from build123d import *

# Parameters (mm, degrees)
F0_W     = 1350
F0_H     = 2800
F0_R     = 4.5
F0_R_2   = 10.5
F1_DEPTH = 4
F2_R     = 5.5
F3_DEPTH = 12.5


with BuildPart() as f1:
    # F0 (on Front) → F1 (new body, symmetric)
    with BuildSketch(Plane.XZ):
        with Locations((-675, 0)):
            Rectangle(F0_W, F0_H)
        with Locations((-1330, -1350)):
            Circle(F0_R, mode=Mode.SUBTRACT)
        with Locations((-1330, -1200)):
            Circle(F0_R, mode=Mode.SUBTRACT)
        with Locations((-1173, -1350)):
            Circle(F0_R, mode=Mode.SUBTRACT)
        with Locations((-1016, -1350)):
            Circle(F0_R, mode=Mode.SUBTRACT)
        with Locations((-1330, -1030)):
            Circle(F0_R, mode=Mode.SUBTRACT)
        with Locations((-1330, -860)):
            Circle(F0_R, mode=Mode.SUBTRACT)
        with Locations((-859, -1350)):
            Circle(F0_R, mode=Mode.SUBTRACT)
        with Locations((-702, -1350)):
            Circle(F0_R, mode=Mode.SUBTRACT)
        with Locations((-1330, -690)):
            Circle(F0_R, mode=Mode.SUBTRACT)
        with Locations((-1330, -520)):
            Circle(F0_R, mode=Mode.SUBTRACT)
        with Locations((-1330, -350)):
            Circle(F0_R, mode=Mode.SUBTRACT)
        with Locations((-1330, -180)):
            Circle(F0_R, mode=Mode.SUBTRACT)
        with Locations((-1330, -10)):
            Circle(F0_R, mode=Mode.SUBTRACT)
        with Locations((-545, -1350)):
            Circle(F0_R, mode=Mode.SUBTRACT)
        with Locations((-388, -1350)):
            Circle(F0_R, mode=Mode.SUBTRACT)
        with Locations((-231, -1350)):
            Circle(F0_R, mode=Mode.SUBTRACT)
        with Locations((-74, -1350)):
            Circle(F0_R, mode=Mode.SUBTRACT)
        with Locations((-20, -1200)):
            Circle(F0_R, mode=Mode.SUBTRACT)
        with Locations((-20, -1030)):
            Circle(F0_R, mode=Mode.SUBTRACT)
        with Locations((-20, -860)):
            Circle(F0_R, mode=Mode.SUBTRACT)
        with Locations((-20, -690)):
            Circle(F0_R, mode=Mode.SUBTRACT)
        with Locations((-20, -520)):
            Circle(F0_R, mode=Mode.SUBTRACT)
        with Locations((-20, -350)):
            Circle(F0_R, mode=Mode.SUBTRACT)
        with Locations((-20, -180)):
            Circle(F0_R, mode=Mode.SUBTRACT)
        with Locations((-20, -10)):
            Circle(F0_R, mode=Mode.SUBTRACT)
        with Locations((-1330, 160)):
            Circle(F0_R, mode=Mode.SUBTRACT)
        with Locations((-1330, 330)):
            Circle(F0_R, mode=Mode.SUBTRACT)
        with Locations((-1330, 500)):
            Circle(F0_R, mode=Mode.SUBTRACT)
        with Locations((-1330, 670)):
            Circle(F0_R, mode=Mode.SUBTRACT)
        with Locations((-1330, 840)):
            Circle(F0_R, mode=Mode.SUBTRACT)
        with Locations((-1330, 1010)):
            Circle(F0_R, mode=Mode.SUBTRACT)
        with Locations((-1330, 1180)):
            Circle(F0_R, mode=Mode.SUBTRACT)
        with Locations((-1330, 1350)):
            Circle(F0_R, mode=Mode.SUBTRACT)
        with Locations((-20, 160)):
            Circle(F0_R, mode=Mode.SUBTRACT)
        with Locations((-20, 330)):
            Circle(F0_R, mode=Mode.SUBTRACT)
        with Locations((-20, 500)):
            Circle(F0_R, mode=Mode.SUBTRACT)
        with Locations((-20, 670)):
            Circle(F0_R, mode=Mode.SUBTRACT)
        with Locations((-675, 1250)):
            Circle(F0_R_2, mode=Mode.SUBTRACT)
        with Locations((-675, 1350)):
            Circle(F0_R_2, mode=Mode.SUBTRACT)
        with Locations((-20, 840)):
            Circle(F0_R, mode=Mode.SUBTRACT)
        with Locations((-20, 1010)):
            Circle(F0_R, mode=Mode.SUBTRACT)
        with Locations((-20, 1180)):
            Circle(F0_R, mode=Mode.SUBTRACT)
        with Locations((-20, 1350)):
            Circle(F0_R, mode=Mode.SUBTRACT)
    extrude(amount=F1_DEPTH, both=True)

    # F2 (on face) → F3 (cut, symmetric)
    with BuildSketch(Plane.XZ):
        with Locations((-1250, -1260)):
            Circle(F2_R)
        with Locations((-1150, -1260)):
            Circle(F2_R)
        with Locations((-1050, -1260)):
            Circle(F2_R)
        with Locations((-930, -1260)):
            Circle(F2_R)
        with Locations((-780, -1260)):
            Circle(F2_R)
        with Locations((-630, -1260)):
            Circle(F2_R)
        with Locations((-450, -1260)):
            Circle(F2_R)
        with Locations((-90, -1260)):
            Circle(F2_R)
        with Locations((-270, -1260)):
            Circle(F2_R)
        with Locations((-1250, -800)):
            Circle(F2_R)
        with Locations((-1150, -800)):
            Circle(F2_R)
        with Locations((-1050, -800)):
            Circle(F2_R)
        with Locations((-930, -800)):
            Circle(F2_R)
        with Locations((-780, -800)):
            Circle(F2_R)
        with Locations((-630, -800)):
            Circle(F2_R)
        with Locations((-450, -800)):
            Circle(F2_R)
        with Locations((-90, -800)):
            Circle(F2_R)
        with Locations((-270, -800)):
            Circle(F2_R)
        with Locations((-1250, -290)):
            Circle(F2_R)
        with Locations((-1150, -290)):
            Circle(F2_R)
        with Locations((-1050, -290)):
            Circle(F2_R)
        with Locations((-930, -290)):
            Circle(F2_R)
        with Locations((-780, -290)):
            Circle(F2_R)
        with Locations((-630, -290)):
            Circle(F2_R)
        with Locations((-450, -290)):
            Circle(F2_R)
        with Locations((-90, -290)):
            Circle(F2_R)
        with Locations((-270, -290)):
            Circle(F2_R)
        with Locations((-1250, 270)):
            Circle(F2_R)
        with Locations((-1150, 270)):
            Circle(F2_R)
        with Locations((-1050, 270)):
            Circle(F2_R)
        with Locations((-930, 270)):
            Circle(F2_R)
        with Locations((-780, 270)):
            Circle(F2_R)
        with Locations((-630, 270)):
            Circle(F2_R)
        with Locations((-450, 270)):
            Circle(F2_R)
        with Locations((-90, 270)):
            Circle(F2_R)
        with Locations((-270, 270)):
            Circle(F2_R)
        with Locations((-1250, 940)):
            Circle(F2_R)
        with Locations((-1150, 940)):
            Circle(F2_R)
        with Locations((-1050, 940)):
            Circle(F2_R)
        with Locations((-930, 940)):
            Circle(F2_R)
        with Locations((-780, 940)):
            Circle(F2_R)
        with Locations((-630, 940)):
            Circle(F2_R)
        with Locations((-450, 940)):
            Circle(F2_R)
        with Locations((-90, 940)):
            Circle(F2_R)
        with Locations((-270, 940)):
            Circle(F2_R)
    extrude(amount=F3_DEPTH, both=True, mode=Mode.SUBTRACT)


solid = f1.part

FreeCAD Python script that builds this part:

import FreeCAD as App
import Part
import Sketcher
from FreeCAD import Vector

doc = App.newDocument("Part")
body = doc.addObject("PartDesign::Body", "Body")

sketch1 = body.newObject("Sketcher::SketchObject", "Sketch")
sketch1.AttachmentSupport = (doc.getObject("XZ_Plane"), [""])
sketch1.MapMode = "FlatFace"
sketch1.addGeometry([
    Part.LineSegment(Vector(-1350, 1400, 0), Vector(-1350, -1400, 0)),
    Part.LineSegment(Vector(-1350, -1400, 0), Vector(0, -1400, 0)),
    Part.LineSegment(Vector(0, -1400, 0), Vector(0, 1400, 0)),
    Part.LineSegment(Vector(0, 1400, 0), Vector(-1350, 1400, 0)),
    Part.Circle(Vector(-1330, -1350, 0), Vector(0, 0, 1), 4.5),
    Part.Circle(Vector(-1330, -1200, 0), Vector(0, 0, 1), 4.5),
    Part.Circle(Vector(-1173, -1350, 0), Vector(0, 0, 1), 4.5),
    Part.Circle(Vector(-1330, -1030, 0), Vector(0, 0, 1), 4.5),
    Part.Circle(Vector(-1016, -1350, 0), Vector(0, 0, 1), 4.5),
    Part.Circle(Vector(-1330, -860, 0), Vector(0, 0, 1), 4.5),
    Part.Circle(Vector(-1330, -690, 0), Vector(0, 0, 1), 4.5),
    Part.Circle(Vector(-859, -1350, 0), Vector(0, 0, 1), 4.5),
    Part.Circle(Vector(-702, -1350, 0), Vector(0, 0, 1), 4.5),
    Part.Circle(Vector(-1330, -520, 0), Vector(0, 0, 1), 4.5),
    Part.Circle(Vector(-1330, -350, 0), Vector(0, 0, 1), 4.5),
    Part.Circle(Vector(-1330, -180, 0), Vector(0, 0, 1), 4.5),
    Part.Circle(Vector(-1330, -10, 0), Vector(0, 0, 1), 4.5),
    Part.Circle(Vector(-545, -1350, 0), Vector(0, 0, 1), 4.5),
    Part.Circle(Vector(-388, -1350, 0), Vector(0, 0, 1), 4.5),
    Part.Circle(Vector(-231, -1350, 0), Vector(0, 0, 1), 4.5),
    Part.Circle(Vector(-74, -1350, 0), Vector(0, 0, 1), 4.5),
    Part.Circle(Vector(-20, -1200, 0), Vector(0, 0, 1), 4.5),
    Part.Circle(Vector(-20, -1030, 0), Vector(0, 0, 1), 4.5),
    Part.Circle(Vector(-20, -860, 0), Vector(0, 0, 1), 4.5),
    Part.Circle(Vector(-20, -690, 0), Vector(0, 0, 1), 4.5),
    Part.Circle(Vector(-20, -520, 0), Vector(0, 0, 1), 4.5),
    Part.Circle(Vector(-20, -350, 0), Vector(0, 0, 1), 4.5),
    Part.Circle(Vector(-20, -180, 0), Vector(0, 0, 1), 4.5),
    Part.Circle(Vector(-20, -10, 0), Vector(0, 0, 1), 4.5),
    Part.Circle(Vector(-1330, 160, 0), Vector(0, 0, 1), 4.5),
    Part.Circle(Vector(-1330, 330, 0), Vector(0, 0, 1), 4.5),
    Part.Circle(Vector(-1330, 500, 0), Vector(0, 0, 1), 4.5),
    Part.Circle(Vector(-1330, 670, 0), Vector(0, 0, 1), 4.5),
    Part.Circle(Vector(-1330, 840, 0), Vector(0, 0, 1), 4.5),
    Part.Circle(Vector(-1330, 1010, 0), Vector(0, 0, 1), 4.5),
    Part.Circle(Vector(-1330, 1180, 0), Vector(0, 0, 1), 4.5),
    Part.Circle(Vector(-1330, 1350, 0), Vector(0, 0, 1), 4.5),
    Part.Circle(Vector(-20, 160, 0), Vector(0, 0, 1), 4.5),
    Part.Circle(Vector(-20, 330, 0), Vector(0, 0, 1), 4.5),
    Part.Circle(Vector(-20, 500, 0), Vector(0, 0, 1), 4.5),
    Part.Circle(Vector(-20, 670, 0), Vector(0, 0, 1), 4.5),
    Part.Circle(Vector(-675, 1250, 0), Vector(0, 0, 1), 10.5),
    Part.Circle(Vector(-675, 1350, 0), Vector(0, 0, 1), 10.5),
    Part.Circle(Vector(-20, 840, 0), Vector(0, 0, 1), 4.5),
    Part.Circle(Vector(-20, 1010, 0), Vector(0, 0, 1), 4.5),
    Part.Circle(Vector(-20, 1180, 0), Vector(0, 0, 1), 4.5),
    Part.Circle(Vector(-20, 1350, 0), Vector(0, 0, 1), 4.5),
], False)
sketch1.addConstraint([
    Sketcher.Constraint("Coincident", 0, 2, 1, 1),
    Sketcher.Constraint("Coincident", 1, 2, 2, 1),
    Sketcher.Constraint("Coincident", 2, 2, 3, 1),
    Sketcher.Constraint("Coincident", 3, 2, 0, 1),
    Sketcher.Constraint("Vertical", 0),
    Sketcher.Constraint("Horizontal", 1),
    Sketcher.Constraint("Vertical", 2),
    Sketcher.Constraint("Horizontal", 3),
    Sketcher.Constraint("Equal", 4, 5),
    Sketcher.Constraint("Equal", 5, 6),
    Sketcher.Constraint("Equal", 6, 7),
    Sketcher.Constraint("Equal", 7, 8),
    Sketcher.Constraint("Equal", 8, 9),
    Sketcher.Constraint("Equal", 9, 10),
    Sketcher.Constraint("Equal", 10, 11),
    Sketcher.Constraint("Equal", 11, 12),
    Sketcher.Constraint("Equal", 12, 13),
    Sketcher.Constraint("Equal", 13, 14),
    Sketcher.Constraint("Equal", 14, 15),
    Sketcher.Constraint("Equal", 15, 16),
    Sketcher.Constraint("Equal", 16, 17),
    Sketcher.Constraint("Equal", 17, 18),
    Sketcher.Constraint("Equal", 18, 19),
    Sketcher.Constraint("Equal", 19, 20),
    Sketcher.Constraint("Equal", 20, 21),
    Sketcher.Constraint("Equal", 21, 22),
    Sketcher.Constraint("Equal", 22, 23),
    Sketcher.Constraint("Equal", 23, 24),
    Sketcher.Constraint("Equal", 24, 25),
    Sketcher.Constraint("Equal", 25, 26),
    Sketcher.Constraint("Equal", 26, 27),
    Sketcher.Constraint("Equal", 27, 28),
    Sketcher.Constraint("Equal", 28, 29),
    Sketcher.Constraint("Equal", 29, 30),
    Sketcher.Constraint("Equal", 30, 31),
    Sketcher.Constraint("Equal", 31, 32),
    Sketcher.Constraint("Equal", 32, 33),
    Sketcher.Constraint("Equal", 33, 34),
    Sketcher.Constraint("Equal", 34, 35),
    Sketcher.Constraint("Equal", 35, 36),
    Sketcher.Constraint("Equal", 36, 37),
    Sketcher.Constraint("Equal", 37, 38),
    Sketcher.Constraint("Equal", 38, 39),
    Sketcher.Constraint("Equal", 39, 40),
    Sketcher.Constraint("Equal", 41, 42),
    Sketcher.Constraint("Equal", 40, 43),
    Sketcher.Constraint("Equal", 43, 44),
    Sketcher.Constraint("Equal", 44, 45),
    Sketcher.Constraint("Equal", 45, 46),
    Sketcher.Constraint("Symmetric", 1, 2, 2, 2, -1, 1),
    Sketcher.Constraint("Symmetric", 4, 3, 36, 3, -1),
    Sketcher.Constraint("Horizontal", 4, 3, 6, 3),
    Sketcher.Constraint("Horizontal", 6, 3, 8, 3),
    Sketcher.Constraint("Horizontal", 8, 3, 11, 3),
    Sketcher.Constraint("Horizontal", 11, 3, 12, 3),
    Sketcher.Constraint("Horizontal", 12, 3, 17, 3),
    Sketcher.Constraint("Horizontal", 17, 3, 18, 3),
    Sketcher.Constraint("Horizontal", 18, 3, 19, 3),
    Sketcher.Constraint("Horizontal", 19, 3, 20, 3),
    Sketcher.Constraint("Horizontal", 5, 3, 21, 3),
    Sketcher.Constraint("Horizontal", 7, 3, 22, 3),
    Sketcher.Constraint("Horizontal", 9, 3, 23, 3),
    Sketcher.Constraint("Horizontal", 10, 3, 24, 3),
    Sketcher.Constraint("Horizontal", 13, 3, 25, 3),
    Sketcher.Constraint("Horizontal", 14, 3, 26, 3),
    Sketcher.Constraint("Horizontal", 15, 3, 27, 3),
    Sketcher.Constraint("Horizontal", 16, 3, 28, 3),
    Sketcher.Constraint("Horizontal", 29, 3, 37, 3),
    Sketcher.Constraint("Horizontal", 30, 3, 38, 3),
    Sketcher.Constraint("Horizontal", 31, 3, 39, 3),
    Sketcher.Constraint("Horizontal", 32, 3, 40, 3),
    Sketcher.Constraint("Horizontal", 36, 3, 42, 3),
    Sketcher.Constraint("Horizontal", 33, 3, 43, 3),
    Sketcher.Constraint("Horizontal", 34, 3, 44, 3),
    Sketcher.Constraint("Horizontal", 35, 3, 45, 3),
    Sketcher.Constraint("Horizontal", 42, 3, 46, 3),
    Sketcher.Constraint("Vertical", 4, 3, 5, 3),
    Sketcher.Constraint("Vertical", 5, 3, 7, 3),
    Sketcher.Constraint("Vertical", 7, 3, 9, 3),
    Sketcher.Constraint("Vertical", 9, 3, 10, 3),
    Sketcher.Constraint("Vertical", 10, 3, 13, 3),
    Sketcher.Constraint("Vertical", 13, 3, 14, 3),
    Sketcher.Constraint("Vertical", 14, 3, 15, 3),
    Sketcher.Constraint("Vertical", 15, 3, 16, 3),
    Sketcher.Constraint("Vertical", 21, 3, 22, 3),
    Sketcher.Constraint("Vertical", 22, 3, 23, 3),
    Sketcher.Constraint("Vertical", 23, 3, 24, 3),
    Sketcher.Constraint("Vertical", 24, 3, 25, 3),
    Sketcher.Constraint("Vertical", 25, 3, 26, 3),
    Sketcher.Constraint("Vertical", 26, 3, 27, 3),
    Sketcher.Constraint("Vertical", 27, 3, 28, 3),
    Sketcher.Constraint("Vertical", 16, 3, 29, 3),
    Sketcher.Constraint("Vertical", 29, 3, 30, 3),
    Sketcher.Constraint("Vertical", 30, 3, 31, 3),
    Sketcher.Constraint("Vertical", 31, 3, 32, 3),
    Sketcher.Constraint("Vertical", 32, 3, 33, 3),
    Sketcher.Constraint("Vertical", 33, 3, 34, 3),
    Sketcher.Constraint("Vertical", 34, 3, 35, 3),
    Sketcher.Constraint("Vertical", 28, 3, 37, 3),
    Sketcher.Constraint("Vertical", 37, 3, 38, 3),
    Sketcher.Constraint("Vertical", 38, 3, 39, 3),
    Sketcher.Constraint("Vertical", 39, 3, 40, 3),
    Sketcher.Constraint("Vertical", 41, 3, 42, 3),
    Sketcher.Constraint("Vertical", 40, 3, 43, 3),
    Sketcher.Constraint("Vertical", 43, 3, 44, 3),
    Sketcher.Constraint("Vertical", 44, 3, 45, 3),
    Sketcher.Constraint("Vertical", 45, 3, 46, 3),
    Sketcher.Constraint("Diameter", 4, 9.0),
    Sketcher.Constraint("Diameter", 41, 21.0),
    Sketcher.Constraint("DistanceX", 1, 1, 1, 2, 1350.0),
    Sketcher.Constraint("DistanceY", 0, 2, 0, 1, 2800.0),
    Sketcher.Constraint("DistanceX", 4, 3, -1, 1, 1330.0),
    Sketcher.Constraint("DistanceY", 4, 3, -1, 1, 1350.0),
    Sketcher.Constraint("DistanceY", 5, 3, -1, 1, 1200.0),
    Sketcher.Constraint("DistanceX", 6, 3, -1, 1, 1173.0),
    Sketcher.Constraint("DistanceY", 7, 3, -1, 1, 1030.0),
    Sketcher.Constraint("DistanceX", 8, 3, -1, 1, 1016.0),
    Sketcher.Constraint("DistanceY", 9, 3, -1, 1, 860.0),
    Sketcher.Constraint("DistanceY", 10, 3, -1, 1, 690.0),
    Sketcher.Constraint("DistanceX", 11, 3, -1, 1, 859.0),
    Sketcher.Constraint("DistanceX", 12, 3, -1, 1, 702.0),
    Sketcher.Constraint("DistanceY", 13, 3, -1, 1, 520.0),
    Sketcher.Constraint("DistanceY", 14, 3, -1, 1, 350.0),
    Sketcher.Constraint("DistanceY", 15, 3, -1, 1, 180.0),
    Sketcher.Constraint("DistanceY", 16, 3, -1, 1, 10.0),
    Sketcher.Constraint("DistanceX", 17, 3, -1, 1, 545.0),
    Sketcher.Constraint("DistanceX", 18, 3, -1, 1, 388.0),
    Sketcher.Constraint("DistanceX", 19, 3, -1, 1, 231.0),
    Sketcher.Constraint("DistanceX", 20, 3, -1, 1, 74.0),
    Sketcher.Constraint("DistanceX", 21, 3, -1, 1, 20.0),
    Sketcher.Constraint("DistanceY", -1, 1, 29, 3, 160.0),
    Sketcher.Constraint("DistanceY", -1, 1, 30, 3, 330.0),
    Sketcher.Constraint("DistanceY", -1, 1, 31, 3, 500.0),
    Sketcher.Constraint("DistanceY", -1, 1, 32, 3, 670.0),
    Sketcher.Constraint("DistanceY", -1, 1, 33, 3, 840.0),
    Sketcher.Constraint("DistanceY", -1, 1, 34, 3, 1010.0),
    Sketcher.Constraint("DistanceY", -1, 1, 35, 3, 1180.0),
    Sketcher.Constraint("DistanceX", 41, 3, -1, 1, 675.0),
    Sketcher.Constraint("DistanceY", -1, 1, 41, 3, 1250.0),
])
pad1 = body.newObject("PartDesign::Pad", "Pad")
pad1.Profile = sketch1
pad1.Length = 8
pad1.Midplane = True

sketch2 = body.newObject("Sketcher::SketchObject", "Sketch001")
sketch2.AttachmentSupport = (doc.getObject("XZ_Plane"), [""])
sketch2.MapMode = "FlatFace"
sketch2.addGeometry([
    Part.Circle(Vector(-1250, -1260, 0), Vector(0, 0, 1), 6),
    Part.Circle(Vector(-1150, -1260, 0), Vector(0, 0, 1), 6),
    Part.Circle(Vector(-1050, -1260, 0), Vector(0, 0, 1), 6),
    Part.Circle(Vector(-930, -1260, 0), Vector(0, 0, 1), 6),
    Part.Circle(Vector(-780, -1260, 0), Vector(0, 0, 1), 6),
    Part.Circle(Vector(-630, -1260, 0), Vector(0, 0, 1), 6),
    Part.Circle(Vector(-450, -1260, 0), Vector(0, 0, 1), 6),
    Part.Circle(Vector(-90, -1260, 0), Vector(0, 0, 1), 6),
    Part.Circle(Vector(-270, -1260, 0), Vector(0, 0, 1), 6),
    Part.Circle(Vector(-1250, -800, 0), Vector(0, 0, 1), 6),
    Part.Circle(Vector(-1150, -800, 0), Vector(0, 0, 1), 6),
    Part.Circle(Vector(-1050, -800, 0), Vector(0, 0, 1), 6),
    Part.Circle(Vector(-930, -800, 0), Vector(0, 0, 1), 6),
    Part.Circle(Vector(-780, -800, 0), Vector(0, 0, 1), 6),
    Part.Circle(Vector(-630, -800, 0), Vector(0, 0, 1), 6),
    Part.Circle(Vector(-450, -800, 0), Vector(0, 0, 1), 6),
    Part.Circle(Vector(-90, -800, 0), Vector(0, 0, 1), 6),
    Part.Circle(Vector(-270, -800, 0), Vector(0, 0, 1), 6),
    Part.Circle(Vector(-1250, -290, 0), Vector(0, 0, 1), 6),
    Part.Circle(Vector(-1150, -290, 0), Vector(0, 0, 1), 6),
    Part.Circle(Vector(-1050, -290, 0), Vector(0, 0, 1), 6),
    Part.Circle(Vector(-930, -290, 0), Vector(0, 0, 1), 6),
    Part.Circle(Vector(-780, -290, 0), Vector(0, 0, 1), 6),
    Part.Circle(Vector(-630, -290, 0), Vector(0, 0, 1), 6),
    Part.Circle(Vector(-450, -290, 0), Vector(0, 0, 1), 6),
    Part.Circle(Vector(-90, -290, 0), Vector(0, 0, 1), 6),
    Part.Circle(Vector(-270, -290, 0), Vector(0, 0, 1), 6),
    Part.Circle(Vector(-1250, 270, 0), Vector(0, 0, 1), 6),
    Part.Circle(Vector(-1150, 270, 0), Vector(0, 0, 1), 6),
    Part.Circle(Vector(-1050, 270, 0), Vector(0, 0, 1), 6),
    Part.Circle(Vector(-930, 270, 0), Vector(0, 0, 1), 6),
    Part.Circle(Vector(-780, 270, 0), Vector(0, 0, 1), 6),
    Part.Circle(Vector(-630, 270, 0), Vector(0, 0, 1), 6),
    Part.Circle(Vector(-450, 270, 0), Vector(0, 0, 1), 6),
    Part.Circle(Vector(-90, 270, 0), Vector(0, 0, 1), 6),
    Part.Circle(Vector(-270, 270, 0), Vector(0, 0, 1), 6),
    Part.Circle(Vector(-1250, 940, 0), Vector(0, 0, 1), 6),
    Part.Circle(Vector(-1150, 940, 0), Vector(0, 0, 1), 6),
    Part.Circle(Vector(-1050, 940, 0), Vector(0, 0, 1), 6),
    Part.Circle(Vector(-930, 940, 0), Vector(0, 0, 1), 6),
    Part.Circle(Vector(-780, 940, 0), Vector(0, 0, 1), 6),
    Part.Circle(Vector(-630, 940, 0), Vector(0, 0, 1), 6),
    Part.Circle(Vector(-450, 940, 0), Vector(0, 0, 1), 6),
    Part.Circle(Vector(-90, 940, 0), Vector(0, 0, 1), 6),
    Part.Circle(Vector(-270, 940, 0), Vector(0, 0, 1), 6),
], False)
sketch2.addConstraint([
    Sketcher.Constraint("Equal", 0, 1),
    Sketcher.Constraint("Equal", 1, 2),
    Sketcher.Constraint("Equal", 2, 3),
    Sketcher.Constraint("Equal", 3, 4),
    Sketcher.Constraint("Equal", 4, 5),
    Sketcher.Constraint("Equal", 5, 6),
    Sketcher.Constraint("Equal", 6, 7),
    Sketcher.Constraint("Equal", 7, 8),
    Sketcher.Constraint("Equal", 8, 9),
    Sketcher.Constraint("Equal", 9, 10),
    Sketcher.Constraint("Equal", 10, 11),
    Sketcher.Constraint("Equal", 11, 12),
    Sketcher.Constraint("Equal", 12, 13),
    Sketcher.Constraint("Equal", 13, 14),
    Sketcher.Constraint("Equal", 14, 15),
    Sketcher.Constraint("Equal", 15, 16),
    Sketcher.Constraint("Equal", 16, 17),
    Sketcher.Constraint("Equal", 17, 18),
    Sketcher.Constraint("Equal", 18, 19),
    Sketcher.Constraint("Equal", 19, 20),
    Sketcher.Constraint("Equal", 20, 21),
    Sketcher.Constraint("Equal", 21, 22),
    Sketcher.Constraint("Equal", 22, 23),
    Sketcher.Constraint("Equal", 23, 24),
    Sketcher.Constraint("Equal", 24, 25),
    Sketcher.Constraint("Equal", 25, 26),
    Sketcher.Constraint("Equal", 26, 27),
    Sketcher.Constraint("Equal", 27, 28),
    Sketcher.Constraint("Equal", 28, 29),
    Sketcher.Constraint("Equal", 29, 30),
    Sketcher.Constraint("Equal", 30, 31),
    Sketcher.Constraint("Equal", 31, 32),
    Sketcher.Constraint("Equal", 32, 33),
    Sketcher.Constraint("Equal", 33, 34),
    Sketcher.Constraint("Equal", 34, 35),
    Sketcher.Constraint("Equal", 35, 36),
    Sketcher.Constraint("Equal", 36, 37),
    Sketcher.Constraint("Equal", 37, 38),
    Sketcher.Constraint("Equal", 38, 39),
    Sketcher.Constraint("Equal", 39, 40),
    Sketcher.Constraint("Equal", 40, 41),
    Sketcher.Constraint("Equal", 41, 42),
    Sketcher.Constraint("Equal", 42, 43),
    Sketcher.Constraint("Equal", 43, 44),
    Sketcher.Constraint("Horizontal", 0, 3, 1, 3),
    Sketcher.Constraint("Horizontal", 1, 3, 2, 3),
    Sketcher.Constraint("Horizontal", 2, 3, 3, 3),
    Sketcher.Constraint("Horizontal", 3, 3, 4, 3),
    Sketcher.Constraint("Horizontal", 4, 3, 5, 3),
    Sketcher.Constraint("Horizontal", 5, 3, 6, 3),
    Sketcher.Constraint("Horizontal", 6, 3, 7, 3),
    Sketcher.Constraint("Horizontal", 7, 3, 8, 3),
    Sketcher.Constraint("Horizontal", 9, 3, 10, 3),
    Sketcher.Constraint("Horizontal", 10, 3, 11, 3),
    Sketcher.Constraint("Horizontal", 11, 3, 12, 3),
    Sketcher.Constraint("Horizontal", 12, 3, 13, 3),
    Sketcher.Constraint("Horizontal", 13, 3, 14, 3),
    Sketcher.Constraint("Horizontal", 14, 3, 15, 3),
    Sketcher.Constraint("Horizontal", 15, 3, 16, 3),
    Sketcher.Constraint("Horizontal", 16, 3, 17, 3),
    Sketcher.Constraint("Horizontal", 18, 3, 19, 3),
    Sketcher.Constraint("Horizontal", 19, 3, 20, 3),
    Sketcher.Constraint("Horizontal", 20, 3, 21, 3),
    Sketcher.Constraint("Horizontal", 21, 3, 22, 3),
    Sketcher.Constraint("Horizontal", 22, 3, 23, 3),
    Sketcher.Constraint("Horizontal", 23, 3, 24, 3),
    Sketcher.Constraint("Horizontal", 24, 3, 25, 3),
    Sketcher.Constraint("Horizontal", 25, 3, 26, 3),
    Sketcher.Constraint("Horizontal", 27, 3, 28, 3),
    Sketcher.Constraint("Horizontal", 28, 3, 29, 3),
    Sketcher.Constraint("Horizontal", 29, 3, 30, 3),
    Sketcher.Constraint("Horizontal", 30, 3, 31, 3),
    Sketcher.Constraint("Horizontal", 31, 3, 32, 3),
    Sketcher.Constraint("Horizontal", 32, 3, 33, 3),
    Sketcher.Constraint("Horizontal", 33, 3, 34, 3),
    Sketcher.Constraint("Horizontal", 34, 3, 35, 3),
    Sketcher.Constraint("Horizontal", 36, 3, 37, 3),
    Sketcher.Constraint("Horizontal", 37, 3, 38, 3),
    Sketcher.Constraint("Horizontal", 38, 3, 39, 3),
    Sketcher.Constraint("Horizontal", 39, 3, 40, 3),
    Sketcher.Constraint("Horizontal", 40, 3, 41, 3),
    Sketcher.Constraint("Horizontal", 41, 3, 42, 3),
    Sketcher.Constraint("Horizontal", 42, 3, 43, 3),
    Sketcher.Constraint("Horizontal", 43, 3, 44, 3),
    Sketcher.Constraint("Vertical", 0, 3, 9, 3),
    Sketcher.Constraint("Vertical", 1, 3, 10, 3),
    Sketcher.Constraint("Vertical", 2, 3, 11, 3),
    Sketcher.Constraint("Vertical", 3, 3, 12, 3),
    Sketcher.Constraint("Vertical", 4, 3, 13, 3),
    Sketcher.Constraint("Vertical", 5, 3, 14, 3),
    Sketcher.Constraint("Vertical", 6, 3, 15, 3),
    Sketcher.Constraint("Vertical", 7, 3, 16, 3),
    Sketcher.Constraint("Vertical", 8, 3, 17, 3),
    Sketcher.Constraint("Vertical", 9, 3, 18, 3),
    Sketcher.Constraint("Vertical", 10, 3, 19, 3),
    Sketcher.Constraint("Vertical", 11, 3, 20, 3),
    Sketcher.Constraint("Vertical", 12, 3, 21, 3),
    Sketcher.Constraint("Vertical", 13, 3, 22, 3),
    Sketcher.Constraint("Vertical", 14, 3, 23, 3),
    Sketcher.Constraint("Vertical", 15, 3, 24, 3),
    Sketcher.Constraint("Vertical", 16, 3, 25, 3),
    Sketcher.Constraint("Vertical", 17, 3, 26, 3),
    Sketcher.Constraint("Vertical", 18, 3, 27, 3),
    Sketcher.Constraint("Vertical", 19, 3, 28, 3),
    Sketcher.Constraint("Vertical", 20, 3, 29, 3),
    Sketcher.Constraint("Vertical", 21, 3, 30, 3),
    Sketcher.Constraint("Vertical", 22, 3, 31, 3),
    Sketcher.Constraint("Vertical", 23, 3, 32, 3),
    Sketcher.Constraint("Vertical", 24, 3, 33, 3),
    Sketcher.Constraint("Vertical", 25, 3, 34, 3),
    Sketcher.Constraint("Vertical", 26, 3, 35, 3),
    Sketcher.Constraint("Vertical", 27, 3, 36, 3),
    Sketcher.Constraint("Vertical", 28, 3, 37, 3),
    Sketcher.Constraint("Vertical", 29, 3, 38, 3),
    Sketcher.Constraint("Vertical", 30, 3, 39, 3),
    Sketcher.Constraint("Vertical", 31, 3, 40, 3),
    Sketcher.Constraint("Vertical", 32, 3, 41, 3),
    Sketcher.Constraint("Vertical", 33, 3, 42, 3),
    Sketcher.Constraint("Vertical", 34, 3, 43, 3),
    Sketcher.Constraint("Vertical", 35, 3, 44, 3),
    Sketcher.Constraint("Diameter", 0, 11.0),
    Sketcher.Constraint("DistanceX", 0, 3, -1, 1, 1250.0),
    Sketcher.Constraint("DistanceY", 0, 3, -1, 1, 1260.0),
    Sketcher.Constraint("DistanceX", 1, 3, -1, 1, 1150.0),
    Sketcher.Constraint("DistanceX", 2, 3, -1, 1, 1050.0),
    Sketcher.Constraint("DistanceX", 3, 3, -1, 1, 930.0),
    Sketcher.Constraint("DistanceX", 4, 3, -1, 1, 780.0),
    Sketcher.Constraint("DistanceX", 5, 3, -1, 1, 630.0),
    Sketcher.Constraint("DistanceX", 6, 3, -1, 1, 450.0),
    Sketcher.Constraint("DistanceX", 7, 3, -1, 1, 90.0),
    Sketcher.Constraint("DistanceX", 8, 3, -1, 1, 270.0),
    Sketcher.Constraint("DistanceY", 9, 3, -1, 1, 800.0),
    Sketcher.Constraint("DistanceY", 18, 3, -1, 1, 290.0),
    Sketcher.Constraint("DistanceY", -1, 1, 27, 3, 270.0),
    Sketcher.Constraint("DistanceY", -1, 1, 36, 3, 940.0),
])
pocket1 = body.newObject("PartDesign::Pocket", "Pocket")
pocket1.Profile = sketch2
pocket1.Length = 25
pocket1.Midplane = True

doc.recompute()
